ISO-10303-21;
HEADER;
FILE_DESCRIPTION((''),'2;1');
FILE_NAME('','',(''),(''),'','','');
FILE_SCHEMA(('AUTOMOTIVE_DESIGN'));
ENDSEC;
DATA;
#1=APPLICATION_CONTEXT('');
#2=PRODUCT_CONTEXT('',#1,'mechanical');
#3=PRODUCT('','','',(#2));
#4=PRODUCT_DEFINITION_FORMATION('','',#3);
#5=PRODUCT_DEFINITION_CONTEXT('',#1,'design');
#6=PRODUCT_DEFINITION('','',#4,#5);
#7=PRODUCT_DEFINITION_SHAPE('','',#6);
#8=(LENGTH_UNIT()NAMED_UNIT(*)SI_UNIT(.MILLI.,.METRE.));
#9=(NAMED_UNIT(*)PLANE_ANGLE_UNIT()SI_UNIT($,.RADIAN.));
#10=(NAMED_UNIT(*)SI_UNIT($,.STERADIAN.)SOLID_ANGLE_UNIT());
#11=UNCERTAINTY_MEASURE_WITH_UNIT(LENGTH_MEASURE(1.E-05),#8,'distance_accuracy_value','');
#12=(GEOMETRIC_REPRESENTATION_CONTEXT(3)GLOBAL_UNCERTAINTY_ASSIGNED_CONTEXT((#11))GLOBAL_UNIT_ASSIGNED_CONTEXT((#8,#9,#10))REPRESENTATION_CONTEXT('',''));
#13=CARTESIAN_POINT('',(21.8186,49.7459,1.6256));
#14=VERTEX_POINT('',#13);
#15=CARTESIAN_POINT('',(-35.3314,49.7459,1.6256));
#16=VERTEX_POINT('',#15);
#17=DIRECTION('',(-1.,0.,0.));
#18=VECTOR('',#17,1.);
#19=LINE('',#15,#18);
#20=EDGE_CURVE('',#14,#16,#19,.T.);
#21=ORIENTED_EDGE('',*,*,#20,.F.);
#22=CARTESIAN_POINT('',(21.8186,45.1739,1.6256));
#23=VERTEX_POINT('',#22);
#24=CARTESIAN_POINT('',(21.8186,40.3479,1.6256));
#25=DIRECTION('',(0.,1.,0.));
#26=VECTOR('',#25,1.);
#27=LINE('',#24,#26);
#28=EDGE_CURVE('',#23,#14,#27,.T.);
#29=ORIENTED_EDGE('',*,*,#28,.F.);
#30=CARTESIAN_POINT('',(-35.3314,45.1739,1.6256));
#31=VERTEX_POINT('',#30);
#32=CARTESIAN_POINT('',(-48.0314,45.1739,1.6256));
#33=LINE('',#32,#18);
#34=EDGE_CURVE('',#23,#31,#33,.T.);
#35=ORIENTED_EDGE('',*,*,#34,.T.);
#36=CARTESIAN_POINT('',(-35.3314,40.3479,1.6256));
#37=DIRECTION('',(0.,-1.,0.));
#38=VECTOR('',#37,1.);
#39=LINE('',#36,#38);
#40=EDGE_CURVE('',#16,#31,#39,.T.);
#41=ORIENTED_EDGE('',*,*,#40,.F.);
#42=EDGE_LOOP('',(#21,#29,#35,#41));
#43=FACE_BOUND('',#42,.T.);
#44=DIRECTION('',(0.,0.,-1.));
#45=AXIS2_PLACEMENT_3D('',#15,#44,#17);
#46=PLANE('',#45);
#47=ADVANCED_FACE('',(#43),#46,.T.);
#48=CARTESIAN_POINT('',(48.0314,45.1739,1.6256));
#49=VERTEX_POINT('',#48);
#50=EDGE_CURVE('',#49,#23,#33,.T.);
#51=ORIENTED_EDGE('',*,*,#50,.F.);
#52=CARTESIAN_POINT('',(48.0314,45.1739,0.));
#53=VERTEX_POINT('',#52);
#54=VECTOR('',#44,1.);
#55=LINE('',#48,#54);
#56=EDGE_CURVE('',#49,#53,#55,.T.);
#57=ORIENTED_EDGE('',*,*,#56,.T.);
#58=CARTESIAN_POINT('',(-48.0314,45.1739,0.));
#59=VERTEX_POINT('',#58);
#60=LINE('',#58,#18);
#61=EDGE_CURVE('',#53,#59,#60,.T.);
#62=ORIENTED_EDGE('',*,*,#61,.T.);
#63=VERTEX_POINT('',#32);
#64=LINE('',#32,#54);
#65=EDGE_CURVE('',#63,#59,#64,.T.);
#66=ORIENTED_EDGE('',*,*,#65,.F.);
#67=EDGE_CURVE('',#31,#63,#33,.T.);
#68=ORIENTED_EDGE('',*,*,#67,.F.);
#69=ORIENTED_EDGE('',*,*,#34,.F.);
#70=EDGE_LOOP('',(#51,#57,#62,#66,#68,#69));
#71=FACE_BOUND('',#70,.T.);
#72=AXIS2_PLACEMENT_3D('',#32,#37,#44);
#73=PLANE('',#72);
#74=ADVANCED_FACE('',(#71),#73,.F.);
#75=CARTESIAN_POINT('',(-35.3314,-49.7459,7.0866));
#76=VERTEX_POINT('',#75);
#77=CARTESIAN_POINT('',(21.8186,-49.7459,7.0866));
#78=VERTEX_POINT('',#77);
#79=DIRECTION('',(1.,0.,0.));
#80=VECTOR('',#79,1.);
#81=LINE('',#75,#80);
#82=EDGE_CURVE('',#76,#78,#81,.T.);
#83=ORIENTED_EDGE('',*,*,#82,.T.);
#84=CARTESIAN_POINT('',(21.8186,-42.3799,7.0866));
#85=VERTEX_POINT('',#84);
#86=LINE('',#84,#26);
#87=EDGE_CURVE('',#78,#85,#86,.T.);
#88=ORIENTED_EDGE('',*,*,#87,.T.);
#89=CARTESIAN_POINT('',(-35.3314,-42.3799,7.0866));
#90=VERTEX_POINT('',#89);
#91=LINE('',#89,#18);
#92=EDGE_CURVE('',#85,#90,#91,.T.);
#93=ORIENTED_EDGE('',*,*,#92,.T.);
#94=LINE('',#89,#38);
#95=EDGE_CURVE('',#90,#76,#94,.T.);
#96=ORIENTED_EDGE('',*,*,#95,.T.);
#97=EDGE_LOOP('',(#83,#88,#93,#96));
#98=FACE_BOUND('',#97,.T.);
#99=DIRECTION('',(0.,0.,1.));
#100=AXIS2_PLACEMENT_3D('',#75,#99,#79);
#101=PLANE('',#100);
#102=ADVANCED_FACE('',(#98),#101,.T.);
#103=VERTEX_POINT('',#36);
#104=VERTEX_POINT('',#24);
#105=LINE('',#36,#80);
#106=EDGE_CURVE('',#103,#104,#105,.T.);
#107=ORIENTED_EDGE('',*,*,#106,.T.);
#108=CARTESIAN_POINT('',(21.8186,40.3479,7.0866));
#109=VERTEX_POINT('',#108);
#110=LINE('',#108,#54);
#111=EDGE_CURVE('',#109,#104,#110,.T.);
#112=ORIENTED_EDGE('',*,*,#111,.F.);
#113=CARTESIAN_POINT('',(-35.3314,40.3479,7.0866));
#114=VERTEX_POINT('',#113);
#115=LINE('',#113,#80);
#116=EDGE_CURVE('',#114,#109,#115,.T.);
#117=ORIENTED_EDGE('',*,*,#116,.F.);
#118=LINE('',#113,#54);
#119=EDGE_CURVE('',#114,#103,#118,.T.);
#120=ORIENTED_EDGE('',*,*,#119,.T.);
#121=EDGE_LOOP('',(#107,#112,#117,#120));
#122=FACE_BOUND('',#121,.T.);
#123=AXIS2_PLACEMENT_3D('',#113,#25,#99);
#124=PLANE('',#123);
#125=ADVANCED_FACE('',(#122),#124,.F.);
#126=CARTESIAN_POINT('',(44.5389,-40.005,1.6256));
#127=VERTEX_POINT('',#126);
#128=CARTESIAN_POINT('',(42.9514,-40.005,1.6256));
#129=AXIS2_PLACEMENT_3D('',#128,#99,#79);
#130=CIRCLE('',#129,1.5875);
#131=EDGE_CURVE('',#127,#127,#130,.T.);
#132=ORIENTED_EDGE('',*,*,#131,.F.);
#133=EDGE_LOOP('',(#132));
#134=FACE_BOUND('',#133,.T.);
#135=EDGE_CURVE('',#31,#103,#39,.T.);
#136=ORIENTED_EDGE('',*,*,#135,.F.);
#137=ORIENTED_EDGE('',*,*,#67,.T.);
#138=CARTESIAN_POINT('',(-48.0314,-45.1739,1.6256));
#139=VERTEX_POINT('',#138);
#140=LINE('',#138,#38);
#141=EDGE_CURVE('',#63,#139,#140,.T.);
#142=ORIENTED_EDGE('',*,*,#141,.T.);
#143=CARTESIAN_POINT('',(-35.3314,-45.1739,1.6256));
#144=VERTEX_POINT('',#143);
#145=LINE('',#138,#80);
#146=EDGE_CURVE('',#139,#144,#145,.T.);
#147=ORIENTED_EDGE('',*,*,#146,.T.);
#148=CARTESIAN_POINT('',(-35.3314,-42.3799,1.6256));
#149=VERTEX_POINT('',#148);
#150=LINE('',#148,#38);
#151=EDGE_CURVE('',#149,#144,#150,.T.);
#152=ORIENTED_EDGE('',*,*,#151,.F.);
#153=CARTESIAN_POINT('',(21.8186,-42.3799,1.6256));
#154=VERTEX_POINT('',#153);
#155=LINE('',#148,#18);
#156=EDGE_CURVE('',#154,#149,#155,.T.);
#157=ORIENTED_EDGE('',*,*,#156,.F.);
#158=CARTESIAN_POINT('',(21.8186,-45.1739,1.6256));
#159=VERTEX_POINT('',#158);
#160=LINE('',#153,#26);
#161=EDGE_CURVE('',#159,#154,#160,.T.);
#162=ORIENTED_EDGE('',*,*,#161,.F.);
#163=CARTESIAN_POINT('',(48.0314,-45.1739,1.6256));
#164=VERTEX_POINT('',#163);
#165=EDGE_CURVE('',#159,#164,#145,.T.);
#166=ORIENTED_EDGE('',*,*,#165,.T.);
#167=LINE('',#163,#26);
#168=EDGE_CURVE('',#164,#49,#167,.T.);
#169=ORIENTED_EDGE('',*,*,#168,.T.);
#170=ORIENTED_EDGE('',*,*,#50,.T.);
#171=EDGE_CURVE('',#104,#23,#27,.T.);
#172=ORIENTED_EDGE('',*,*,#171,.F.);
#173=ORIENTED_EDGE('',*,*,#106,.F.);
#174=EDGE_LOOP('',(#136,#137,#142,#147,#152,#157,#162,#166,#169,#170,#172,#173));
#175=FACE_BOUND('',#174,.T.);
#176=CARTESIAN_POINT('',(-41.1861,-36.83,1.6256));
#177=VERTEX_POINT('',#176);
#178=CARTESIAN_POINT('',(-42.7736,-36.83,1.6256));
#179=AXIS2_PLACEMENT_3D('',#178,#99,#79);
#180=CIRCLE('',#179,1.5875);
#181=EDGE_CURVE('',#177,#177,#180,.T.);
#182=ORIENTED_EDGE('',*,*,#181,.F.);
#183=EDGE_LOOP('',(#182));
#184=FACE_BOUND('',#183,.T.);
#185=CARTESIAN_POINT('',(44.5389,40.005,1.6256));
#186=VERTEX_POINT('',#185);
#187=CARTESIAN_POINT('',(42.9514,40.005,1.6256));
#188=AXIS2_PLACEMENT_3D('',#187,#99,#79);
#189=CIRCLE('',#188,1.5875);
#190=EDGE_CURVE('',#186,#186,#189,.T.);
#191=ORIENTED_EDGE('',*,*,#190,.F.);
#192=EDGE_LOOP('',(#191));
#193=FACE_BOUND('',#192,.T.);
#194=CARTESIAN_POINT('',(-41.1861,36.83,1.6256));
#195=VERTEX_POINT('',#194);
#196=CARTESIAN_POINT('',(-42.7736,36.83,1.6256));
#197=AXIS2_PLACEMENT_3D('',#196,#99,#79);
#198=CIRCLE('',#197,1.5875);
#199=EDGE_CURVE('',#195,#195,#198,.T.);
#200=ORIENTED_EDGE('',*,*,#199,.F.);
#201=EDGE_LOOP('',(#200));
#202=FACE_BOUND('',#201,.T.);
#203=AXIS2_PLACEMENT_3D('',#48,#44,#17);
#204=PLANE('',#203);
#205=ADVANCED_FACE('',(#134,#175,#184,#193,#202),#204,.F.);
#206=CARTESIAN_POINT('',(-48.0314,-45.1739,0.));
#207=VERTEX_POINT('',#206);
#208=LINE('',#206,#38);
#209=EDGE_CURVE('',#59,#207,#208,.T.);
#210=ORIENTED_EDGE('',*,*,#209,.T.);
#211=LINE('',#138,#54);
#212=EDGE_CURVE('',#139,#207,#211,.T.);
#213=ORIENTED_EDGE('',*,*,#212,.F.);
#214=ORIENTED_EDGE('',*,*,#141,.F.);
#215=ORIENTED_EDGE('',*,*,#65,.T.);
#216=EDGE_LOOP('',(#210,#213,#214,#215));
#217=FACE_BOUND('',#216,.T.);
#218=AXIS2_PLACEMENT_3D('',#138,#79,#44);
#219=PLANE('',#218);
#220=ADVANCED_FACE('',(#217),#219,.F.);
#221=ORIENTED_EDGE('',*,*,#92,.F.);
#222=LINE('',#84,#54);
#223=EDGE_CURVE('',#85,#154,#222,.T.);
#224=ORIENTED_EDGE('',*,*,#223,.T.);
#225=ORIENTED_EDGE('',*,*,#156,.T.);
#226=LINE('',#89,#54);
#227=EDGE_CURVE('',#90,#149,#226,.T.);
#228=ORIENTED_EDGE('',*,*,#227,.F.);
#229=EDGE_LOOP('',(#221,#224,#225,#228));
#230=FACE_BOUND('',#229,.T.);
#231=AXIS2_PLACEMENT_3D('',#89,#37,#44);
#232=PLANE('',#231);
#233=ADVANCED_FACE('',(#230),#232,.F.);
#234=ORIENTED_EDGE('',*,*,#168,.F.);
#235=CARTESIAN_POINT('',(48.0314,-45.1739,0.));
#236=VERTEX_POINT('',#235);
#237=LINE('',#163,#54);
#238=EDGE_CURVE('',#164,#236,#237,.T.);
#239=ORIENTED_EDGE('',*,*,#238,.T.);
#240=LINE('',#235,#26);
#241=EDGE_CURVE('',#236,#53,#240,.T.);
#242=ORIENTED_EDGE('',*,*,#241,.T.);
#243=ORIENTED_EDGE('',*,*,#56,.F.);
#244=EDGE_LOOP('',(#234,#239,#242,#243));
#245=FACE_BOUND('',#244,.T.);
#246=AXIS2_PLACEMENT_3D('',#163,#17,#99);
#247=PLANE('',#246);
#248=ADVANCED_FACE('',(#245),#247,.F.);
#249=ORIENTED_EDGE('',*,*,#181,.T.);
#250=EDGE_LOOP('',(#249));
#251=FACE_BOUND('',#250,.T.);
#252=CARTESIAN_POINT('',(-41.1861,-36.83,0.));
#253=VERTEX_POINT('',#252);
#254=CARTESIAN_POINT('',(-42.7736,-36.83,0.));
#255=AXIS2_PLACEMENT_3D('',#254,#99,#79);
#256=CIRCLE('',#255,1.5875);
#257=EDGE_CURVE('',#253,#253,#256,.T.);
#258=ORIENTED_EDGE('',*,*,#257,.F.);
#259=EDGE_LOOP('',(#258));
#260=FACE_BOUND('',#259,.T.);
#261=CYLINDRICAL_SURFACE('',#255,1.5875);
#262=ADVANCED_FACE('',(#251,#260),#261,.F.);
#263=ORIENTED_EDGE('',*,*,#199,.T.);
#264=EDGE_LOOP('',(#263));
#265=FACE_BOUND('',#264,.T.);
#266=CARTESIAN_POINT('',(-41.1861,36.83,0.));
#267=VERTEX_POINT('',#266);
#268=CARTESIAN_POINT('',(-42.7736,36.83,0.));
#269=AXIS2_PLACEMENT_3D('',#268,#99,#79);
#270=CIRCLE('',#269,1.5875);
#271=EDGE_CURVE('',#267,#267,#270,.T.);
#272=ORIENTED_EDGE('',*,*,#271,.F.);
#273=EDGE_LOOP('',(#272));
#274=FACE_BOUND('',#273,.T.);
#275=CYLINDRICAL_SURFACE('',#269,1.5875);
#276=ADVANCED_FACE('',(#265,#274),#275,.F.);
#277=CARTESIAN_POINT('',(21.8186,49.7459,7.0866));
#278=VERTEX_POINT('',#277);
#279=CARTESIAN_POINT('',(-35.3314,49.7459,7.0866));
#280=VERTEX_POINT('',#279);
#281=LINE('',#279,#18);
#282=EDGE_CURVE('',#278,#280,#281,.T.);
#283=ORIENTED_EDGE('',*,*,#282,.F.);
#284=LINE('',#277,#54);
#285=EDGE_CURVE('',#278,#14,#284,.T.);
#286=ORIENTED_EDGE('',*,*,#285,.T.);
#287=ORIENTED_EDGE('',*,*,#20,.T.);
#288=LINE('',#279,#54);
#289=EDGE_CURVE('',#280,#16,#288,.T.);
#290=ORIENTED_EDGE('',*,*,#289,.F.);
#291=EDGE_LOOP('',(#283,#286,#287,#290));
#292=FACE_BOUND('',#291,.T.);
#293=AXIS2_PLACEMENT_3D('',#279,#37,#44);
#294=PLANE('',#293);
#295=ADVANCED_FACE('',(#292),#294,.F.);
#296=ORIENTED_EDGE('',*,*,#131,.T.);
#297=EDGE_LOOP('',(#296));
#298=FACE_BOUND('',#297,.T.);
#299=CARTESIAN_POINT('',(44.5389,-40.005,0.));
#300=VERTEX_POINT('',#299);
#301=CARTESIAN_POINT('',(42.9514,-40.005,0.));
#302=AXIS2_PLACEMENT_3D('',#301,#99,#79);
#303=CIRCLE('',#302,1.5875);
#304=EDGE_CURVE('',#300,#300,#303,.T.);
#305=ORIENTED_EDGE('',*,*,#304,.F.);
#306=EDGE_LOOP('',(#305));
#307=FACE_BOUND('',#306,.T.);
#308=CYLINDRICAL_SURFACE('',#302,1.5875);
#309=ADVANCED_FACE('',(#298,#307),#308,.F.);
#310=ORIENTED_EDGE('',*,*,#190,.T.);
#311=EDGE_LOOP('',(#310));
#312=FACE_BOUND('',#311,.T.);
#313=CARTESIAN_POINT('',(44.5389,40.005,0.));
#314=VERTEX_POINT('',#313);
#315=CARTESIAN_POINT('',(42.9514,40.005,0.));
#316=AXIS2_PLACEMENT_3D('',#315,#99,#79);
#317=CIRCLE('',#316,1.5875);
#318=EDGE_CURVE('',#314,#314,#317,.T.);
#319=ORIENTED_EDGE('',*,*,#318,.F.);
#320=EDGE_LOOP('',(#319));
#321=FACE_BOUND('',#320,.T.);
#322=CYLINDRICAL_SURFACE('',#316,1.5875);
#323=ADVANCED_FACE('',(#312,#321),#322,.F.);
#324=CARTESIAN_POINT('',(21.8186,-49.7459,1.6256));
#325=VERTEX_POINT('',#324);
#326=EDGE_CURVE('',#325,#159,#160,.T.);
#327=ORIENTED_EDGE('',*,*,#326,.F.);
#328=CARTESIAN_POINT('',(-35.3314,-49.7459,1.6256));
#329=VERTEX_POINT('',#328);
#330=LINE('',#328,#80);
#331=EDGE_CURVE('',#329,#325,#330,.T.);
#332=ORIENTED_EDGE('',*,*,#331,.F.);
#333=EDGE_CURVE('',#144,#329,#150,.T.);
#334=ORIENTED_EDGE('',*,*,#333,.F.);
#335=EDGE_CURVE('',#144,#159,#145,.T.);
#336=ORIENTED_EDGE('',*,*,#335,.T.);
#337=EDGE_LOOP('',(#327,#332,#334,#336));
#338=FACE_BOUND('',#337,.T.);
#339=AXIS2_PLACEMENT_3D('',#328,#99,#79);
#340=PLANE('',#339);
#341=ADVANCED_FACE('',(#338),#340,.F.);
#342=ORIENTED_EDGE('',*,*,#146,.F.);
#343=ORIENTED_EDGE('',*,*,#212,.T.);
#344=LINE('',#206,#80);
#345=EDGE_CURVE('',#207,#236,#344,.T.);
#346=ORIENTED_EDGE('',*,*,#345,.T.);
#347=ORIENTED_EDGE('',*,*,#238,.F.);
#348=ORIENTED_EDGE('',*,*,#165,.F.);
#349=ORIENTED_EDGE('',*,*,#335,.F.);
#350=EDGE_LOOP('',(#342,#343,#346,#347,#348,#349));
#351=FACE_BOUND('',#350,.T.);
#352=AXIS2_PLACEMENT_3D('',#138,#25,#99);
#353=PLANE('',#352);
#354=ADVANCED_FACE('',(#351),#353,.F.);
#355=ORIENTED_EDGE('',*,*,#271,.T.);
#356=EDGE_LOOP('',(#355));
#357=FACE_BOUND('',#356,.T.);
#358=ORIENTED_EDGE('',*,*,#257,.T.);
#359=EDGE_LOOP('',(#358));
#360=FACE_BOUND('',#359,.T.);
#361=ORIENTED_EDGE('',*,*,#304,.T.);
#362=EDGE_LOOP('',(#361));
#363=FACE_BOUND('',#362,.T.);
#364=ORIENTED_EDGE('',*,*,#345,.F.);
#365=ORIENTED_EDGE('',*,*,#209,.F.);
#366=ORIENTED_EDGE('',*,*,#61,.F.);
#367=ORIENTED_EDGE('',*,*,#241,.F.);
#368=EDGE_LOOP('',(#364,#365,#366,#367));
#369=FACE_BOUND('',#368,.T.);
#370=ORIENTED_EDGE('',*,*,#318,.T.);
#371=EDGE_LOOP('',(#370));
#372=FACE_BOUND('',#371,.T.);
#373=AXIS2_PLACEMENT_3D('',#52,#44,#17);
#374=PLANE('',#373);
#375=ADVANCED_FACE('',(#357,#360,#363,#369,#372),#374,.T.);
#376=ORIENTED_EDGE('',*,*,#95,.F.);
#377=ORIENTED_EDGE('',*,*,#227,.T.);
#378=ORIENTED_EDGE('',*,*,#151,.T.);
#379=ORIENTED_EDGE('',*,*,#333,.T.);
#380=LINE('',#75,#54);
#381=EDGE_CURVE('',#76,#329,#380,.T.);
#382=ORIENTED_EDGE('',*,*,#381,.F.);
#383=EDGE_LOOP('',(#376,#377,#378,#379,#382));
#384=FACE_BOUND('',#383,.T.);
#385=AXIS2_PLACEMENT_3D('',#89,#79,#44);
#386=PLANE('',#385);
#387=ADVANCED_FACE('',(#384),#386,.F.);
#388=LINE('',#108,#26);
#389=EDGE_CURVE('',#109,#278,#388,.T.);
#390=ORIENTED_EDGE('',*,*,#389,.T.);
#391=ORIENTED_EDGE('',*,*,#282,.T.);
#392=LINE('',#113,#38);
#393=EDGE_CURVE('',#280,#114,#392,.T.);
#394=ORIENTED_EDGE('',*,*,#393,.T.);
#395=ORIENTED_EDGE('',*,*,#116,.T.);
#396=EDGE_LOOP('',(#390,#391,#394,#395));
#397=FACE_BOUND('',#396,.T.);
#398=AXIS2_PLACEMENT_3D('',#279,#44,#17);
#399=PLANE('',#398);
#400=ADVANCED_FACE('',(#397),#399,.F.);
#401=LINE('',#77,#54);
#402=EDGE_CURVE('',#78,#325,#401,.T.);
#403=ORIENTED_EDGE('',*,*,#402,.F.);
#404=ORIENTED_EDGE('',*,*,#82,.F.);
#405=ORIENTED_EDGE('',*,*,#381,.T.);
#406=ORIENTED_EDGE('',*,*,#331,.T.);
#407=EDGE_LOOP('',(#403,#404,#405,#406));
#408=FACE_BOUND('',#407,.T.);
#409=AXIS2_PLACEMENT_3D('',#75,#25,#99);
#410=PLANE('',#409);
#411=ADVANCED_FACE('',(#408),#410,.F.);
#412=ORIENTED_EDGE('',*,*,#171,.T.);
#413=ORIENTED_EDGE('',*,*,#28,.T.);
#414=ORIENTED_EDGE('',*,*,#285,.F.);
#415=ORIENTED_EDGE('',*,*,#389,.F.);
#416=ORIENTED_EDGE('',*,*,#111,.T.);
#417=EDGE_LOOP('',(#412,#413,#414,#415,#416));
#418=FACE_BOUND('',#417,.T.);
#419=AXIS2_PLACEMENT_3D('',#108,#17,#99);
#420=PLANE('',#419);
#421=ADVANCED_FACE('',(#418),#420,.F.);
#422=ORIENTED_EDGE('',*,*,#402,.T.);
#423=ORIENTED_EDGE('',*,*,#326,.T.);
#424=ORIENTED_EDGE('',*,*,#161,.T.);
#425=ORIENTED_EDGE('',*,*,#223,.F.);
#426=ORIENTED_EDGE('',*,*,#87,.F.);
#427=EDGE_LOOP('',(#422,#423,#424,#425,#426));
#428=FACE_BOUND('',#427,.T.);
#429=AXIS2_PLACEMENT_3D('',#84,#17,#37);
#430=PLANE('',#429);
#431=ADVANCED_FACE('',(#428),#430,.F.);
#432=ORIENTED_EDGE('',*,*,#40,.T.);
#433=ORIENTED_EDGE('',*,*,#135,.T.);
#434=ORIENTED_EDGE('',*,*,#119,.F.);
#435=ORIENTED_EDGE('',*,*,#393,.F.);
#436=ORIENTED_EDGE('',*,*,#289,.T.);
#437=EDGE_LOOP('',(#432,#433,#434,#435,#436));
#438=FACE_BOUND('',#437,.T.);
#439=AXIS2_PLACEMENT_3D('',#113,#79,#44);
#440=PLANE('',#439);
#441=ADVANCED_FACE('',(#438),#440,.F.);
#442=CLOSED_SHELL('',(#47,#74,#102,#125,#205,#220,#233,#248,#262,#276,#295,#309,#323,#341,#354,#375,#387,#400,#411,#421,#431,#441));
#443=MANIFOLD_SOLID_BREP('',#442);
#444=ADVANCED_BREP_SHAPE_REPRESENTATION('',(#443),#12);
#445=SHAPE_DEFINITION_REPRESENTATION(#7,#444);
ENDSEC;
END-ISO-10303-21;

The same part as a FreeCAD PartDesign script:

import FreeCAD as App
import Part
import Sketcher
Q = App.Units.Quantity


def add_polygon(sketch, points):
    """Adds a closed chain of lines whose ends are joined by coincident constraints."""
    first, n = sketch.GeometryCount, len(points)
    for a, b in zip(points, points[1:] + points[:1]):
        sketch.addGeometry(Part.LineSegment(App.Vector(*a, 0), App.Vector(*b, 0)), False)
    for i in range(n):
        sketch.addConstraint(Sketcher.Constraint("Coincident", first + i, 2, first + (i + 1) % n, 1))

doc = App.newDocument("Part")
params = doc.addObject("Spreadsheet::Sheet", "Params")
for row, (alias, value) in enumerate([
    ("sketch1_width", "3.782 in"),
    ("sketch1_height", "3.557 in"),
    ("pad1_length", "0.064 in"),
    ("sketch2_diameter", "0.125 in"),
    ("sketch3_width", "2.25 in"),
    ("sketch3_height", "0.29 in"),
    ("sketch3_height2", "0.37 in"),
    ("pad2_length", "0.215 in"),
], start=1):
    params.set(f"A{row}", alias)
    params.set(f"B{row}", "=" + value)
    params.setAlias(f"B{row}", alias)

body = doc.addObject("PartDesign::Body", "Body")

# Sketch on XY plane
sketch1 = body.newObject("Sketcher::SketchObject", "Sketch")
sketch1.AttachmentSupport = (doc.getObject("XY_Plane"), [""])
sketch1.MapMode = "FlatFace"
add_polygon(sketch1, [(-48.0314, 45.1739), (-48.0314, -45.1739), (48.0314, -45.1739), (48.0314, 45.1739)])  # lines 0-3
sketch1.addConstraint(Sketcher.Constraint("Vertical", 0))
sketch1.addConstraint(Sketcher.Constraint("Horizontal", 1))
sketch1.addConstraint(Sketcher.Constraint("Vertical", 2))
sketch1.addConstraint(Sketcher.Constraint("Horizontal", 3))
sketch1.addConstraint(Sketcher.Constraint("Symmetric", 0, 2, 2, 2, -1, 1))
sketch1.addConstraint(Sketcher.Constraint("DistanceX", 1, 1, 1, 2, Q("3.782 in")))
sketch1.addConstraint(Sketcher.Constraint("DistanceY", 0, 2, 0, 1, Q("3.557 in")))
sketch1.setExpression("Constraints[9]", "Params.sketch1_width")
sketch1.setExpression("Constraints[10]", "Params.sketch1_height")
pad1 = body.newObject("PartDesign::Pad", "Pad")
pad1.Profile = sketch1
pad1.setExpression("Length", "Params.pad1_length")

# Sketch on XY plane
sketch2 = body.newObject("Sketcher::SketchObject", "Sketch001")
sketch2.AttachmentSupport = (doc.getObject("XY_Plane"), [""])
sketch2.MapMode = "FlatFace"
sketch2.AttachmentOffset = App.Placement(App.Vector(0, 0, 0.064 * 25.4), App.Rotation())
sketch2.addGeometry(Part.Circle(App.Vector(-42.7736, 36.83, 0), App.Vector(0, 0, 1), 1.5875), False)
sketch2.addGeometry(Part.Circle(App.Vector(42.9514, 40.005, 0), App.Vector(0, 0, 1), 1.5875), False)
sketch2.addGeometry(Part.Circle(App.Vector(42.9514, -40.005, 0), App.Vector(0, 0, 1), 1.5875), False)
sketch2.addGeometry(Part.Circle(App.Vector(-42.7736, -36.83, 0), App.Vector(0, 0, 1), 1.5875), False)
sketch2.addConstraint(Sketcher.Constraint("Equal", 0, 1))
sketch2.addConstraint(Sketcher.Constraint("Equal", 1, 2))
sketch2.addConstraint(Sketcher.Constraint("Equal", 2, 3))
sketch2.addConstraint(Sketcher.Constraint("Symmetric", 1, 3, 2, 3, -1))
sketch2.addConstraint(Sketcher.Constraint("Symmetric", 0, 3, 3, 3, -1))
sketch2.addConstraint(Sketcher.Constraint("Diameter", 0, Q("0.125 in")))
sketch2.addConstraint(Sketcher.Constraint("DistanceY", 3, 3, 0, 3, Q("2.9 in")))
sketch2.addConstraint(Sketcher.Constraint("DistanceY", 2, 3, 1, 3, Q("3.15 in")))
sketch2.addConstraint(Sketcher.Constraint("DistanceX", 0, 3, -1, 1, Q("1.684 in")))
sketch2.addConstraint(Sketcher.Constraint("DistanceX", -1, 1, 1, 3, Q("1.691 in")))
sketch2.setExpression("Constraints[5]", "Params.sketch2_diameter")
pocket1 = body.newObject("PartDesign::Pocket", "Pocket")
pocket1.Profile = sketch2
pocket1.Type = "ThroughAll"

# Sketch on XY plane
sketch3 = body.newObject("Sketcher::SketchObject", "Sketch002")
sketch3.AttachmentSupport = (doc.getObject("XY_Plane"), [""])
sketch3.MapMode = "FlatFace"
sketch3.AttachmentOffset = App.Placement(App.Vector(0, 0, 0.064 * 25.4), App.Rotation())
add_polygon(sketch3, [(-35.3314, -42.3799), (-35.3314, -49.7459), (21.8186, -49.7459), (21.8186, -42.3799)])  # lines 0-3
add_polygon(sketch3, [(-35.3314, 49.7459), (-35.3314, 40.3479), (21.8186, 40.3479), (21.8186, 49.7459)])  # lines 4-7
sketch3.addConstraint(Sketcher.Constraint("Vertical", 0))
sketch3.addConstraint(Sketcher.Constraint("Horizontal", 1))
sketch3.addConstraint(Sketcher.Constraint("Vertical", 2))
sketch3.addConstraint(Sketcher.Constraint("Horizontal", 3))
sketch3.addConstraint(Sketcher.Constraint("Vertical", 4))
sketch3.addConstraint(Sketcher.Constraint("Horizontal", 5))
sketch3.addConstraint(Sketcher.Constraint("Vertical", 6))
sketch3.addConstraint(Sketcher.Constraint("Horizontal", 7))
sketch3.addConstraint(Sketcher.Constraint("Symmetric", 1, 2, 6, 2, -1))
sketch3.addConstraint(Sketcher.Constraint("Vertical", 3, 2, 4, 2))
sketch3.addConstraint(Sketcher.Constraint("DistanceX", 1, 1, 1, 2, Q("2.25 in")))
sketch3.addConstraint(Sketcher.Constraint("DistanceY", 0, 2, 0, 1, Q("0.29 in")))
sketch3.addConstraint(Sketcher.Constraint("DistanceY", 4, 2, 4, 1, Q("0.37 in")))
sketch3.addConstraint(Sketcher.Constraint("DistanceX", 0, 2, -1, 1, Q("1.391 in")))
sketch3.addConstraint(Sketcher.Constraint("DistanceY", 3, 2, 4, 2, Q("3.257 in")))
sketch3.setExpression("Constraints[18]", "Params.sketch3_width")
sketch3.setExpression("Constraints[19]", "Params.sketch3_height")
sketch3.setExpression("Constraints[20]", "Params.sketch3_height2")
pad2 = body.newObject("PartDesign::Pad", "Pad001")
pad2.Profile = sketch3
pad2.setExpression("Length", "Params.pad2_length")

doc.recompute()
